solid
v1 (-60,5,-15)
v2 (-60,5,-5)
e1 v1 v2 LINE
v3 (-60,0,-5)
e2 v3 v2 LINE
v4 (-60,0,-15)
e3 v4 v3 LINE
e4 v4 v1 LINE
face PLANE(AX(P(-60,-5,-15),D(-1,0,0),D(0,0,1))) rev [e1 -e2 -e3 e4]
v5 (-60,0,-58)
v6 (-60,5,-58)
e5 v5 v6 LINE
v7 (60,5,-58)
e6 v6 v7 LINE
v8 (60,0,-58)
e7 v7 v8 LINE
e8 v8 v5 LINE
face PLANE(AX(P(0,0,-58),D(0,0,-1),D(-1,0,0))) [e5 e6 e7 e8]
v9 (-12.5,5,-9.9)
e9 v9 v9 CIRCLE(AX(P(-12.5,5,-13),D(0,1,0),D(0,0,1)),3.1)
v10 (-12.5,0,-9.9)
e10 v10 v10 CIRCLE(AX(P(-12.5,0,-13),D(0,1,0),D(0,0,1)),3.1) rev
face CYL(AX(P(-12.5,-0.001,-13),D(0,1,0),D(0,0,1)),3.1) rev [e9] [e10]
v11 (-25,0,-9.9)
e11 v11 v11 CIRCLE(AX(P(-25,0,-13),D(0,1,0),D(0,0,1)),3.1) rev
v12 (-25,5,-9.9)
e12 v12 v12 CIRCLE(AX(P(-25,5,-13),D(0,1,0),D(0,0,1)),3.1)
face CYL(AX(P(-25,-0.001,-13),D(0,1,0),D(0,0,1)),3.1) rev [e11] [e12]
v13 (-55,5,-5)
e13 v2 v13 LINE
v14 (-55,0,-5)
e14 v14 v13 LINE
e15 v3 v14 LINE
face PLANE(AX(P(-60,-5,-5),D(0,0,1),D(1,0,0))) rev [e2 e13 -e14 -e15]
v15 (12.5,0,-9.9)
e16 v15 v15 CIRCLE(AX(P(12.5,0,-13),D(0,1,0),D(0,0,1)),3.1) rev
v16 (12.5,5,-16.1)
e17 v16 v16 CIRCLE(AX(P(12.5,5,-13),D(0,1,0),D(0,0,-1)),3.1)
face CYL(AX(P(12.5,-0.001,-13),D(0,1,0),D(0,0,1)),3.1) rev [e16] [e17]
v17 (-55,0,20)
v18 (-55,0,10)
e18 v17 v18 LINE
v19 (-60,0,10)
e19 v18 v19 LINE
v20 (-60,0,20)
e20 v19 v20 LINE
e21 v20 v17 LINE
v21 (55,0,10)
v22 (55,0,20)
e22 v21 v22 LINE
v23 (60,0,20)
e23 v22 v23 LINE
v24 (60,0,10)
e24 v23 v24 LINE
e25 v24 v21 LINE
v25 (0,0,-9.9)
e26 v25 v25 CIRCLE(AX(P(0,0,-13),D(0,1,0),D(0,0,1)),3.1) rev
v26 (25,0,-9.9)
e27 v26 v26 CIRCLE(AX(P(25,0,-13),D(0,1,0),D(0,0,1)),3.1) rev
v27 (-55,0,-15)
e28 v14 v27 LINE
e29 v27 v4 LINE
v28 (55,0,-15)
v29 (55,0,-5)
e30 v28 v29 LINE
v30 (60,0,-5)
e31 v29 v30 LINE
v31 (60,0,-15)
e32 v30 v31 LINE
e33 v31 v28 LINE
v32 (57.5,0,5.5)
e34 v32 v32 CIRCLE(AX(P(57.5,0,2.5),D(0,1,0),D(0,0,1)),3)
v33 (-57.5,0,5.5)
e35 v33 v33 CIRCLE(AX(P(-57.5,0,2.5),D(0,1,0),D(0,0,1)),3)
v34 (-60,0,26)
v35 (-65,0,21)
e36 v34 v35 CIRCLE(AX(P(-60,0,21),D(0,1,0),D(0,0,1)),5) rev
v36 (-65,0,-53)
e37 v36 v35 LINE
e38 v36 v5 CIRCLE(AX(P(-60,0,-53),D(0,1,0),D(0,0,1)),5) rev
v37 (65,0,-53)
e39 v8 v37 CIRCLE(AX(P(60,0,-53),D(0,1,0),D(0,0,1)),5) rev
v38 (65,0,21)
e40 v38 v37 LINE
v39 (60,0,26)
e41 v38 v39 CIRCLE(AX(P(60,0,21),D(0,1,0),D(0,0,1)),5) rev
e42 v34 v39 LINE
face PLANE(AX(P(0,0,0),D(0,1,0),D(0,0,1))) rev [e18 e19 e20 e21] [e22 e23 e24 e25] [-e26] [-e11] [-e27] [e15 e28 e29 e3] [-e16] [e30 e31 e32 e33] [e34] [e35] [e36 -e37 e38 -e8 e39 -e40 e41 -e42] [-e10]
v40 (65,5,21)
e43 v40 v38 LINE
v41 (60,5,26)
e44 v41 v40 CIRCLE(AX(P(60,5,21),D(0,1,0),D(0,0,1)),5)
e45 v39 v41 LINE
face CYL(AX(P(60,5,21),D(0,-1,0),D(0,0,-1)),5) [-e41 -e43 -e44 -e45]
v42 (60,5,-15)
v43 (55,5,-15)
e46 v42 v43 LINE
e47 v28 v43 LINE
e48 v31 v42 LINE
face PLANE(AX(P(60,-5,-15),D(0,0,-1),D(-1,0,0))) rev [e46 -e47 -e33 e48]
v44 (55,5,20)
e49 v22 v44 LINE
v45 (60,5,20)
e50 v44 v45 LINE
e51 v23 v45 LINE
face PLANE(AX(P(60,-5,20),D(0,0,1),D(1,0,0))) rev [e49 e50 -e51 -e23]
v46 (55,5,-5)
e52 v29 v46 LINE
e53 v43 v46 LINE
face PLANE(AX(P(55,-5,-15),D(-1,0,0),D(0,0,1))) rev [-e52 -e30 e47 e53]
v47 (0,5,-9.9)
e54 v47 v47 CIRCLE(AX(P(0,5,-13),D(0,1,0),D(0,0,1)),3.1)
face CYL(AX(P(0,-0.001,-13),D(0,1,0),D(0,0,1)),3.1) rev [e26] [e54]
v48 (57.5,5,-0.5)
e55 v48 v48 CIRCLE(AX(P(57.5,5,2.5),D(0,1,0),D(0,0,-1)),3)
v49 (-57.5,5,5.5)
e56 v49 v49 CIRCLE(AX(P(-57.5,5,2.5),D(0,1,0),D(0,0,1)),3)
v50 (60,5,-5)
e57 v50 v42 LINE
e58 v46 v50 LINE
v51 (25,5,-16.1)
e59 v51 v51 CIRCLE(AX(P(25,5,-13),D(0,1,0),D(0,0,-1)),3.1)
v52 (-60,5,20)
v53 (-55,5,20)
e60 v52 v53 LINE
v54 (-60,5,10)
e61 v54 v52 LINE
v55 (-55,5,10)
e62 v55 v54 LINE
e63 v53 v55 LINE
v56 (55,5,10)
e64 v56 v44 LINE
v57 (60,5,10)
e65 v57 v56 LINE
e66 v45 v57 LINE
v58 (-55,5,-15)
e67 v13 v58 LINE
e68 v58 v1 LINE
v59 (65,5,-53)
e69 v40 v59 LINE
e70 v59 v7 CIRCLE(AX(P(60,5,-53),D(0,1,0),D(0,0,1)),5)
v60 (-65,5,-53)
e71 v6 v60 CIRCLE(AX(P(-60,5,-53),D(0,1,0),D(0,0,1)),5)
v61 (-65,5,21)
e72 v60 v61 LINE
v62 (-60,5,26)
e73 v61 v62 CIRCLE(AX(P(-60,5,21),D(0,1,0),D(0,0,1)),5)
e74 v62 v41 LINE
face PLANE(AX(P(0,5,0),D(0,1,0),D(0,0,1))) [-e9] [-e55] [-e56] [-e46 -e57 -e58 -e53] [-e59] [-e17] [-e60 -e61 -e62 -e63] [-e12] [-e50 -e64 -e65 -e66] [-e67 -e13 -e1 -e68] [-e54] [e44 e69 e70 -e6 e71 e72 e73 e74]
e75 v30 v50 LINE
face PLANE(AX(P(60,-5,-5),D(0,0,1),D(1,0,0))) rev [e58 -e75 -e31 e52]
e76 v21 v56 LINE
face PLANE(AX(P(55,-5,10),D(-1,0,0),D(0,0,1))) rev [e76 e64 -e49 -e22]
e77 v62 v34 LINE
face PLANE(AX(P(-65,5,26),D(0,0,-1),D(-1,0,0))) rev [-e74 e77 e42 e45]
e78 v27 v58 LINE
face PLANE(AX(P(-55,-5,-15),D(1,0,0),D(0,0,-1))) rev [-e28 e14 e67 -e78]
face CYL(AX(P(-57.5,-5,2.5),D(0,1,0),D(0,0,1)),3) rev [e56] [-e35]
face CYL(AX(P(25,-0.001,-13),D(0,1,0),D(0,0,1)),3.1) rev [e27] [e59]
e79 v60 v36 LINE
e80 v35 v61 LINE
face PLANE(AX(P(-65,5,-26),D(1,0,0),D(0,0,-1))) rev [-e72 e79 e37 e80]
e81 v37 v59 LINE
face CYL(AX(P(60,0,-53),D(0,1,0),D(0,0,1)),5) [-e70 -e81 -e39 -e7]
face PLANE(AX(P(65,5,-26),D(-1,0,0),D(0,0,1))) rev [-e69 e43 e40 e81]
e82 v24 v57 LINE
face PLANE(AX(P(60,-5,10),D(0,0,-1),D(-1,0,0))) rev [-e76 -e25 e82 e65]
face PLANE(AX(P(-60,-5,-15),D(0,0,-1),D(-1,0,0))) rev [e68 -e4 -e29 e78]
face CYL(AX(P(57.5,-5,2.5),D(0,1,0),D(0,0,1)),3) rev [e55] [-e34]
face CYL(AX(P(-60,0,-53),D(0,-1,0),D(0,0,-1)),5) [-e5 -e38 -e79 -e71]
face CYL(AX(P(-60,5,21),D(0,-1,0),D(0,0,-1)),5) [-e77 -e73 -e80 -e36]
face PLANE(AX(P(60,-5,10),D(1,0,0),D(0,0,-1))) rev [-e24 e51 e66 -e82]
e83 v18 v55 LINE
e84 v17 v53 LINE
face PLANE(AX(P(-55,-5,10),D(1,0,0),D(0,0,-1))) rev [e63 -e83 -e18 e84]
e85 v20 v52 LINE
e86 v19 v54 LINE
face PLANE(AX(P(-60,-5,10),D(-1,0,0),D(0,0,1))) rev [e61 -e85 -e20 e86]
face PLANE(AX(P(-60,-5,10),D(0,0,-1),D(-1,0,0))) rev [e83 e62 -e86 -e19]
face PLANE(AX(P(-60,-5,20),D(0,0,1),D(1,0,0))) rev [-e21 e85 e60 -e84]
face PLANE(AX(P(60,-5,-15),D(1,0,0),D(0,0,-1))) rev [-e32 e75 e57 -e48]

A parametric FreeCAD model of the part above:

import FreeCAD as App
import Part
import Sketcher


def edges_at(feature, points):
    """Names of the edges that pass closest to the given points."""
    edges = feature.Shape.Edges
    near = lambda p: min(range(len(edges)), key=lambda i: edges[i].distToShape(Part.Vertex(*p))[0])
    return sorted({f"Edge{near(p) + 1}" for p in points})


def add_polygon(sketch, points):
    """Adds a closed chain of lines whose ends are joined by coincident constraints."""
    first, n = sketch.GeometryCount, len(points)
    for a, b in zip(points, points[1:] + points[:1]):
        sketch.addGeometry(Part.LineSegment(App.Vector(*a, 0), App.Vector(*b, 0)), False)
    for i in range(n):
        sketch.addConstraint(Sketcher.Constraint("Coincident", first + i, 2, first + (i + 1) % n, 1))

doc = App.newDocument("Part")
body = doc.addObject("PartDesign::Body", "Body")

# Sketch on XZ plane
sketch1 = body.newObject("Sketcher::SketchObject", "Sketch")
sketch1.AttachmentSupport = (doc.getObject("XZ_Plane"), [""])
sketch1.MapMode = "FlatFace"
add_polygon(sketch1, [(-65, -26), (-65, 26), (65, 26), (65, -26)])  # lines 0-3
sketch1.addConstraint([
    Sketcher.Constraint("Vertical", 0),
    Sketcher.Constraint("Horizontal", 1),
    Sketcher.Constraint("Vertical", 2),
    Sketcher.Constraint("Horizontal", 3),
    Sketcher.Constraint("Symmetric", 0, 2, 2, 2, -1, 1),
    Sketcher.Constraint("DistanceX", 1, 1, 1, 2, 130.0),
    Sketcher.Constraint("DistanceY", 0, 1, 0, 2, 52.0),
])
pad1 = body.newObject("PartDesign::Pad", "Pad")
pad1.Profile = sketch1
pad1.Length = 5
pad1.Reversed = True

# Sketch on XY plane
sketch2 = body.newObject("Sketcher::SketchObject", "Sketch001")
sketch2.AttachmentSupport = (doc.getObject("XY_Plane"), [""])
sketch2.MapMode = "FlatFace"
sketch2.AttachmentOffset = App.Placement(App.Vector(0, 0, -26), App.Rotation())
add_polygon(sketch2, [(65, 5), (65, 0), (-65, 0), (-65, 5)])  # lines 0-3
sketch2.addConstraint([
    Sketcher.Constraint("Vertical", 0),
    Sketcher.Constraint("Horizontal", 1),
    Sketcher.Constraint("Vertical", 2),
    Sketcher.Constraint("Horizontal", 3),
    Sketcher.Constraint("Symmetric", 0, 2, 1, 2, -1, 1),
    Sketcher.Constraint("DistanceX", 1, 2, 1, 1, 130.0),
    Sketcher.Constraint("DistanceY", 0, 2, 0, 1, 5.0),
])
pad2 = body.newObject("PartDesign::Pad", "Pad001")
pad2.Profile = sketch2
pad2.Length = 32
pad2.Reversed = True

# Sketch on XZ plane
sketch3 = body.newObject("Sketcher::SketchObject", "Sketch002")
sketch3.AttachmentSupport = (doc.getObject("XZ_Plane"), [""])
sketch3.MapMode = "FlatFace"
sketch3.AttachmentOffset = App.Placement(App.Vector(0, 0, -5), App.Rotation())
sketch3.addGeometry(Part.Circle(App.Vector(-57.5, 2.5, 0), App.Vector(0, 0, 1), 3), False)  # 0
sketch3.addGeometry(Part.Circle(App.Vector(57.5, 2.5, 0), App.Vector(0, 0, 1), 3), False)  # 1
add_polygon(sketch3, [(55, -15), (55, -5), (60, -5), (60, -15)])  # lines 2-5
add_polygon(sketch3, [(-60, 10), (-60, 20), (-55, 20), (-55, 10)])  # lines 6-9
add_polygon(sketch3, [(-60, -15), (-60, -5), (-55, -5), (-55, -15)])  # lines 10-13
add_polygon(sketch3, [(55, 10), (55, 20), (60, 20), (60, 10)])  # lines 14-17
sketch3.addConstraint([
    Sketcher.Constraint("Vertical", 2),
    Sketcher.Constraint("Horizontal", 3),
    Sketcher.Constraint("Vertical", 4),
    Sketcher.Constraint("Horizontal", 5),
    Sketcher.Constraint("Vertical", 6),
    Sketcher.Constraint("Horizontal", 7),
    Sketcher.Constraint("Vertical", 8),
    Sketcher.Constraint("Horizontal", 9),
    Sketcher.Constraint("Vertical", 10),
    Sketcher.Constraint("Horizontal", 11),
    Sketcher.Constraint("Vertical", 12),
    Sketcher.Constraint("Horizontal", 13),
    Sketcher.Constraint("Vertical", 14),
    Sketcher.Constraint("Horizontal", 15),
    Sketcher.Constraint("Vertical", 16),
    Sketcher.Constraint("Horizontal", 17),
    Sketcher.Constraint("Equal", 0, 1),
    Sketcher.Constraint("Symmetric", 0, 3, 1, 3, -2),
    Sketcher.Constraint("Symmetric", 3, 2, 10, 2, -2),
    Sketcher.Constraint("Symmetric", 5, 2, 12, 2, -2),
    Sketcher.Constraint("Symmetric", 7, 2, 14, 2, -2),
    Sketcher.Constraint("Symmetric", 9, 2, 16, 2, -2),
    Sketcher.Constraint("Vertical", 9, 2, 10, 2),
    Sketcher.Constraint("Vertical", 8, 2, 11, 2),
    Sketcher.Constraint("Equal", 4, 6),
    Sketcher.Constraint("Diameter", 0, 6.0),
    Sketcher.Constraint("DistanceX", 3, 1, 3, 2, 5.0),
    Sketcher.Constraint("DistanceY", 2, 1, 2, 2, 10.0),
    Sketcher.Constraint("DistanceX", -1, 1, 2, 2, 55.0),
    Sketcher.Constraint("DistanceY", 2, 2, -1, 1, 5.0),
    Sketcher.Constraint("DistanceY", -1, 1, 6, 2, 20.0),
    Sketcher.Constraint("DistanceX", 0, 3, 1, 3, 115.0),
    Sketcher.Constraint("DistanceY", -1, 1, 0, 3, 2.5),
])
pocket1 = body.newObject("PartDesign::Pocket", "Pocket")
pocket1.Profile = sketch3
pocket1.Length = 10
pocket1.Reversed = True
doc.recompute()

fillet = body.newObject("PartDesign::Fillet", "Fillet")
fillet.Base = (pocket1, edges_at(pocket1, [
    (65, 2.5, -58),
    (-65, 2.5, -58),
    (65, 2.5, 26),
    (-65, 2.5, 26),
]))
fillet.Radius = 5

# Sketch on XZ plane
sketch4 = body.newObject("Sketcher::SketchObject", "Sketch003")
sketch4.AttachmentSupport = (doc.getObject("XZ_Plane"), [""])
sketch4.MapMode = "FlatFace"
sketch4.AttachmentOffset = App.Placement(App.Vector(0, 0, -5), App.Rotation())
sketch4.addGeometry(Part.Circle(App.Vector(-12.5, -13, 0), App.Vector(0, 0, 1), 3.1), False)
sketch4.addConstraint([
    Sketcher.Constraint("Diameter", 0, 6.2),
    Sketcher.Constraint("DistanceY", 0, 3, -1, 1, 13.0),
    Sketcher.Constraint("DistanceX", 0, 3, -1, 1, 12.5),
])
pocket2 = body.newObject("PartDesign::Pocket", "Pocket001")
pocket2.Profile = sketch4
pocket2.Type = "UpToFirst"
pocket2.Reversed = True

# Sketch on XZ plane
sketch5 = body.newObject("Sketcher::SketchObject", "Sketch004")
sketch5.AttachmentSupport = (doc.getObject("XZ_Plane"), [""])
sketch5.MapMode = "FlatFace"
sketch5.AttachmentOffset = App.Placement(App.Vector(0, 0, -5), App.Rotation())
sketch5.addGeometry(Part.Circle(App.Vector(-25, -13, 0), App.Vector(0, 0, 1), 3.1), False)
sketch5.addConstraint([
    Sketcher.Constraint("Diameter", 0, 6.2),
    Sketcher.Constraint("DistanceX", 0, 3, -1, 1, 25.0),
    Sketcher.Constraint("DistanceY", 0, 3, -1, 1, 13.0),
])
pocket3 = body.newObject("PartDesign::Pocket", "Pocket002")
pocket3.Profile = sketch5
pocket3.Type = "UpToFirst"
pocket3.Reversed = True

# Sketch on XZ plane
sketch6 = body.newObject("Sketcher::SketchObject", "Sketch005")
sketch6.AttachmentSupport = (doc.getObject("XZ_Plane"), [""])
sketch6.MapMode = "FlatFace"
sketch6.AttachmentOffset = App.Placement(App.Vector(0, 0, -5), App.Rotation())
sketch6.addGeometry(Part.Circle(App.Vector(0, -13, 0), App.Vector(0, 0, 1), 3.1), False)
sketch6.addConstraint([
    Sketcher.Constraint("PointOnObject", 0, 3, -2),
    Sketcher.Constraint("Diameter", 0, 6.2),
    Sketcher.Constraint("DistanceY", 0, 3, -1, 1, 13.0),
])
pocket4 = body.newObject("PartDesign::Pocket", "Pocket003")
pocket4.Profile = sketch6
pocket4.Type = "UpToFirst"
pocket4.Reversed = True

# Sketch on XZ plane
sketch7 = body.newObject("Sketcher::SketchObject", "Sketch006")
sketch7.AttachmentSupport = (doc.getObject("XZ_Plane"), [""])
sketch7.MapMode = "FlatFace"
sketch7.AttachmentOffset = App.Placement(App.Vector(0, 0, -5), App.Rotation())
sketch7.addGeometry(Part.Circle(App.Vector(12.5, -13, 0), App.Vector(0, 0, 1), 3.1), False)
sketch7.addConstraint([
    Sketcher.Constraint("Diameter", 0, 6.2),
    Sketcher.Constraint("DistanceY", 0, 3, -1, 1, 13.0),
    Sketcher.Constraint("DistanceX", -1, 1, 0, 3, 12.5),
])
pocket5 = body.newObject("PartDesign::Pocket", "Pocket004")
pocket5.Profile = sketch7
pocket5.Type = "UpToFirst"
pocket5.Reversed = True

# Sketch on XZ plane
sketch8 = body.newObject("Sketcher::SketchObject", "Sketch007")
sketch8.AttachmentSupport = (doc.getObject("XZ_Plane"), [""])
sketch8.MapMode = "FlatFace"
sketch8.AttachmentOffset = App.Placement(App.Vector(0, 0, -5), App.Rotation())
sketch8.addGeometry(Part.Circle(App.Vector(25, -13, 0), App.Vector(0, 0, 1), 3.1), False)
sketch8.addConstraint([
    Sketcher.Constraint("Diameter", 0, 6.2),
    Sketcher.Constraint("DistanceX", -1, 1, 0, 3, 25.0),
    Sketcher.Constraint("DistanceY", 0, 3, -1, 1, 13.0),
])
pocket6 = body.newObject("PartDesign::Pocket", "Pocket005")
pocket6.Profile = sketch8
pocket6.Type = "UpToFirst"
pocket6.Reversed = True

doc.recompute()
